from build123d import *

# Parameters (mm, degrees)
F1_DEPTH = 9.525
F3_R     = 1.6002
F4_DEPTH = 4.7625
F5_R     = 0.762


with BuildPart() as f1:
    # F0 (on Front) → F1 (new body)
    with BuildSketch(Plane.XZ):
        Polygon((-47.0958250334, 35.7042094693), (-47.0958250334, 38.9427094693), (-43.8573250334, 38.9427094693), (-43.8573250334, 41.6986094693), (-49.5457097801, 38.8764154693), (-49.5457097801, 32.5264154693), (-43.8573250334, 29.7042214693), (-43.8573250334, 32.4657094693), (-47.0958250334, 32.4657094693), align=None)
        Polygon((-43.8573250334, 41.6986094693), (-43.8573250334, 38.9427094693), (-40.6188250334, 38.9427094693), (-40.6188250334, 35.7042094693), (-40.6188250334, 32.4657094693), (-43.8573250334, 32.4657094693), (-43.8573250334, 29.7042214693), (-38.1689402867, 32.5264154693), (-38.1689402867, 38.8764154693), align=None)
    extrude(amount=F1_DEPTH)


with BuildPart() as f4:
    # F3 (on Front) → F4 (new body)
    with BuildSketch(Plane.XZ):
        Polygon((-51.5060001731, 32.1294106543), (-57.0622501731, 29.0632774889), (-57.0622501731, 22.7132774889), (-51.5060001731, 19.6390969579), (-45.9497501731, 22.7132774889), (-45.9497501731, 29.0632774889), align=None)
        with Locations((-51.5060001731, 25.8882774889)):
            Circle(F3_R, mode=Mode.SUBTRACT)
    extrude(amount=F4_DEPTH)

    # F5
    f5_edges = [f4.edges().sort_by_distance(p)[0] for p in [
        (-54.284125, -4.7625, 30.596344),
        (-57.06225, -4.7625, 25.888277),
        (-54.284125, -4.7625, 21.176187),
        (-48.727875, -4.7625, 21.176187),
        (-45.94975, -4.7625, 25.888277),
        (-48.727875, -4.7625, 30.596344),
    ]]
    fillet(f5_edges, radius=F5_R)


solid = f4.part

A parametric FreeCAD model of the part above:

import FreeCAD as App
import Part
import Sketcher
Q = App.Units.Quantity


def edges_at(feature, points):
    """Names of the edges that pass closest to the given points."""
    edges = feature.Shape.Edges
    near = lambda p: min(range(len(edges)), key=lambda i: edges[i].distToShape(Part.Vertex(*p))[0])
    return sorted({f"Edge{near(p) + 1}" for p in points})

doc = App.newDocument("Part")
body = doc.addObject("PartDesign::Body", "Body")

sketch1 = body.newObject("Sketcher::SketchObject", "Sketch")
sketch1.AttachmentSupport = (doc.getObject("XZ_Plane"), [""])
sketch1.MapMode = "FlatFace"
sketch1.addGeometry([
    Part.LineSegment(App.Vector(-43.857325, 41.698609, 0), App.Vector(-49.54571, 38.876415, 0)),
    Part.LineSegment(App.Vector(-49.54571, 38.876415, 0), App.Vector(-49.54571, 32.526415, 0)),
    Part.LineSegment(App.Vector(-49.54571, 32.526415, 0), App.Vector(-43.857325, 29.704221, 0)),
    Part.LineSegment(App.Vector(-43.857325, 29.704221, 0), App.Vector(-38.16894, 32.526415, 0)),
    Part.LineSegment(App.Vector(-38.16894, 32.526415, 0), App.Vector(-38.16894, 38.876415, 0)),
    Part.LineSegment(App.Vector(-38.16894, 38.876415, 0), App.Vector(-43.857325, 41.698609, 0)),
    Part.LineSegment(App.Vector(-47.095825, 38.942709, 0), App.Vector(-40.618825, 38.942709, 0)),
    Part.LineSegment(App.Vector(-40.618825, 38.942709, 0), App.Vector(-40.618825, 32.465709, 0)),
    Part.LineSegment(App.Vector(-40.618825, 32.465709, 0), App.Vector(-47.095825, 32.465709, 0)),
    Part.LineSegment(App.Vector(-47.095825, 32.465709, 0), App.Vector(-47.095825, 38.942709, 0)),
], False)
sketch1.addConstraint([
    Sketcher.Constraint("Coincident", 0, 2, 1, 1),
    Sketcher.Constraint("Coincident", 1, 2, 2, 1),
    Sketcher.Constraint("Coincident", 2, 2, 3, 1),
    Sketcher.Constraint("Coincident", 3, 2, 4, 1),
    Sketcher.Constraint("Coincident", 4, 2, 5, 1),
    Sketcher.Constraint("Coincident", 5, 2, 0, 1),
    Sketcher.Constraint("Coincident", 6, 2, 7, 1),
    Sketcher.Constraint("Coincident", 7, 2, 8, 1),
    Sketcher.Constraint("Coincident", 8, 2, 9, 1),
    Sketcher.Constraint("Coincident", 9, 2, 6, 1),
    Sketcher.Constraint("Vertical", 1),
    Sketcher.Constraint("Vertical", 4),
    Sketcher.Constraint("Horizontal", 6),
    Sketcher.Constraint("Vertical", 7),
    Sketcher.Constraint("Horizontal", 8),
    Sketcher.Constraint("Vertical", 9),
    Sketcher.Constraint("Parallel", 0, 3),
    Sketcher.Constraint("Parallel", 2, 5),
    Sketcher.Constraint("Horizontal", 1, 2, 3, 2),
    Sketcher.Constraint("Horizontal", 0, 2, 4, 2),
    Sketcher.Constraint("Vertical", 2, 2, 5, 2),
    Sketcher.Constraint("Equal", 8, 7),
    Sketcher.Constraint("DistanceY", 1, 2, 1, 1, Q("0.25 in")),
    Sketcher.Constraint("Distance", 0, Q("0.25 in")),
    Sketcher.Constraint("DistanceX", 6, 1, 6, 2, Q("0.255 in")),
    Sketcher.Constraint("DistanceX", 5, 2, 6, 2, Q("0.1275 in")),
    Sketcher.Constraint("DistanceY", 6, 2, 5, 2, Q("0.1085 in")),
    Sketcher.Constraint("DistanceX", 0, 2, -1, 1, Q("49.54571 mm")),
    Sketcher.Constraint("DistanceY", -1, 1, 2, 2, Q("29.704221 mm")),
    Sketcher.Constraint("DistanceX", 3, 2, -1, 1, Q("38.16894 mm")),
])
pad1 = body.newObject("PartDesign::Pad", "Pad")
pad1.Profile = sketch1
pad1.Length = Q("0.375 in")
body2 = doc.addObject("PartDesign::Body", "Body001")

sketch2 = body2.newObject("Sketcher::SketchObject", "Sketch001")
sketch2.AttachmentSupport = (doc.getObject("XZ_Plane001"), [""])
sketch2.MapMode = "FlatFace"
sketch2.addGeometry([
    Part.LineSegment(App.Vector(-51.506, 32.129411, 0), App.Vector(-57.06225, 29.063277, 0)),
    Part.LineSegment(App.Vector(-57.06225, 29.063277, 0), App.Vector(-57.06225, 22.713277, 0)),
    Part.LineSegment(App.Vector(-57.06225, 22.713277, 0), App.Vector(-51.506, 19.639097, 0)),
    Part.LineSegment(App.Vector(-51.506, 19.639097, 0), App.Vector(-45.94975, 22.713277, 0)),
    Part.LineSegment(App.Vector(-45.94975, 22.713277, 0), App.Vector(-45.94975, 29.063277, 0)),
    Part.LineSegment(App.Vector(-45.94975, 29.063277, 0), App.Vector(-51.506, 32.129411, 0)),
    Part.Circle(App.Vector(-51.506, 25.888277, 0), App.Vector(0, 0, 1), 1.6002),
], False)
sketch2.addConstraint([
    Sketcher.Constraint("Coincident", 0, 2, 1, 1),
    Sketcher.Constraint("Coincident", 1, 2, 2, 1),
    Sketcher.Constraint("Coincident", 2, 2, 3, 1),
    Sketcher.Constraint("Coincident", 3, 2, 4, 1),
    Sketcher.Constraint("Coincident", 4, 2, 5, 1),
    Sketcher.Constraint("Coincident", 5, 2, 0, 1),
    Sketcher.Constraint("Vertical", 1),
    Sketcher.Constraint("Vertical", 4),
    Sketcher.Constraint("Horizontal", 1, 2, 3, 2),
    Sketcher.Constraint("Horizontal", 0, 2, 4, 2),
    Sketcher.Constraint("Vertical", 6, 3, 2, 2),
    Sketcher.Constraint("Vertical", 2, 2, 5, 2),
    Sketcher.Constraint("Equal", 2, 3),
    Sketcher.Constraint("Diameter", 6, Q("0.126 in")),
    Sketcher.Constraint("DistanceY", 1, 2, 1, 1, Q("0.25 in")),
    Sketcher.Constraint("Distance", 2, Q("0.25 in")),
    Sketcher.Constraint("DistanceX", 0, 2, 6, 3, Q("0.21875 in")),
    Sketcher.Constraint("DistanceY", 6, 3, 0, 2, Q("0.125 in")),
    Sketcher.Constraint("DistanceX", 6, 3, -1, 1, Q("51.506 mm")),
    Sketcher.Constraint("DistanceY", -1, 1, 5, 2, Q("32.129411 mm")),
    Sketcher.Constraint("Distance", 0, Q("6.346108 mm")),
])
pad2 = body2.newObject("PartDesign::Pad", "Pad001")
pad2.Profile = sketch2
pad2.Length = Q("0.1875 in")
doc.recompute()

fillet = body2.newObject("PartDesign::Fillet", "Fillet")
fillet.Base = (pad2, edges_at(pad2, [
    (-54.284, -4.763, 30.596),
    (-57.062, -4.763, 25.888),
    (-54.284, -4.763, 21.176),
    (-48.728, -4.763, 21.176),
    (-45.95, -4.763, 25.888),
    (-48.728, -4.763, 30.596),
]))
fillet.Radius = Q("0.03 in")
body.Visibility = False

doc.recompute()
